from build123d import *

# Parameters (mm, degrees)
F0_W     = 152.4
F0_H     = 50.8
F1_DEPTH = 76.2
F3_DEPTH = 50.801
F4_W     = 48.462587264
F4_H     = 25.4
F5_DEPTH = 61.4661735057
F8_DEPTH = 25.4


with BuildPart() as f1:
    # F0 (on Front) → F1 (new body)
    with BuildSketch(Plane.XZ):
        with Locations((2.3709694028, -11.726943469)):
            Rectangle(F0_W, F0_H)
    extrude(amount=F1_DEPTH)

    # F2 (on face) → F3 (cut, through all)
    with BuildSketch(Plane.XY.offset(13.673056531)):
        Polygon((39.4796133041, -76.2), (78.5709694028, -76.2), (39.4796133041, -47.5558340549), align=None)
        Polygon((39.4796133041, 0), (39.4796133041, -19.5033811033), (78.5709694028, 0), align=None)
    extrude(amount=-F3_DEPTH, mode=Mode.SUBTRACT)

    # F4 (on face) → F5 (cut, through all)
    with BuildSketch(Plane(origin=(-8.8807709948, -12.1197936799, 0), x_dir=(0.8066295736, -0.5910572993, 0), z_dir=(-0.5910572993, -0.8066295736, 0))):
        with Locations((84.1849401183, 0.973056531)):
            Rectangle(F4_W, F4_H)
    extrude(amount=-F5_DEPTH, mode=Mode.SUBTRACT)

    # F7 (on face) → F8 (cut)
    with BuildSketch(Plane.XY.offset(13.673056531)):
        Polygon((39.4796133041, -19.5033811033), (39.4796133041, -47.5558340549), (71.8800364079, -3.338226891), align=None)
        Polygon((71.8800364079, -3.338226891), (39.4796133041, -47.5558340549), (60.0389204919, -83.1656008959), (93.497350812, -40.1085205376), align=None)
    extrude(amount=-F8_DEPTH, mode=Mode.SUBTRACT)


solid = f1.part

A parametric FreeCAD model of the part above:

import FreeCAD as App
import Part
import Sketcher
from FreeCAD import Vector
Q = App.Units.Quantity

doc = App.newDocument("Part")
body = doc.addObject("PartDesign::Body", "Body")

sketch1 = doc.addObject("Sketcher::SketchObject", "Sketch")
body.addObject(sketch1)
sketch1.AttachmentSupport = (doc.XZ_Plane, [""])
sketch1.MapMode = "FlatFace"
sketch1.addGeometry([
    Part.LineSegment(Vector(-73.829031, 13.673057, 0), Vector(-73.829031, -37.126943, 0)),
    Part.LineSegment(Vector(-73.829031, -37.126943, 0), Vector(78.570969, -37.126943, 0)),
    Part.LineSegment(Vector(78.570969, -37.126943, 0), Vector(78.570969, 13.673057, 0)),
    Part.LineSegment(Vector(78.570969, 13.673057, 0), Vector(-73.829031, 13.673057, 0)),
], False)
sketch1.addConstraint([
    Sketcher.Constraint("Coincident", 0, 2, 1, 1),
    Sketcher.Constraint("Coincident", 1, 2, 2, 1),
    Sketcher.Constraint("Coincident", 2, 2, 3, 1),
    Sketcher.Constraint("Coincident", 3, 2, 0, 1),
    Sketcher.Constraint("Vertical", 0),
    Sketcher.Constraint("Horizontal", 1),
    Sketcher.Constraint("Vertical", 2),
    Sketcher.Constraint("Horizontal", 3),
    Sketcher.Constraint("DistanceX", 1, 1, 1, 2, Q("6 in")),
    Sketcher.Constraint("DistanceY", 0, 2, 0, 1, Q("2 in")),
    Sketcher.Constraint("DistanceX", 0, 2, -1, 1, Q("73.829031 mm")),
    Sketcher.Constraint("DistanceY", 0, 2, -1, 1, Q("37.126943 mm")),
])
pad1 = doc.addObject("PartDesign::Pad", "Pad")
body.addObject(pad1)
pad1.Profile = sketch1
pad1.Length = Q("3 in")

sketch2 = doc.addObject("Sketcher::SketchObject", "Sketch001")
body.addObject(sketch2)
sketch2.AttachmentSupport = (doc.XY_Plane, [""])
sketch2.MapMode = "FlatFace"
sketch2.AttachmentOffset = App.Placement(Vector(0, 0, 13.673057), App.Rotation())
sketch2.addGeometry([
    Part.LineSegment(Vector(39.479613, -76.2, 0), Vector(78.570969, -76.2, 0)),
    Part.LineSegment(Vector(78.570969, -76.2, 0), Vector(39.479613, -47.555834, 0)),
    Part.LineSegment(Vector(39.479613, -47.555834, 0), Vector(39.479613, -76.2, 0)),
    Part.LineSegment(Vector(39.479613, 0, 0), Vector(39.479613, -19.503381, 0)),
    Part.LineSegment(Vector(39.479613, -19.503381, 0), Vector(78.570969, 0, 0)),
    Part.LineSegment(Vector(78.570969, 0, 0), Vector(39.479613, 0, 0)),
], False)
sketch2.addConstraint([
    Sketcher.Constraint("Coincident", 0, 2, 1, 1),
    Sketcher.Constraint("Coincident", 1, 2, 2, 1),
    Sketcher.Constraint("Coincident", 2, 2, 0, 1),
    Sketcher.Constraint("Coincident", 3, 2, 4, 1),
    Sketcher.Constraint("Coincident", 4, 2, 5, 1),
    Sketcher.Constraint("Coincident", 5, 2, 3, 1),
    Sketcher.Constraint("Horizontal", 0),
    Sketcher.Constraint("Vertical", 2),
    Sketcher.Constraint("Vertical", 3),
    Sketcher.Constraint("Horizontal", 5),
    Sketcher.Constraint("PointOnObject", 4, 2, -1),
    Sketcher.Constraint("Vertical", 2, 2, 3, 2),
    Sketcher.Constraint("Vertical", 0, 2, 4, 2),
    Sketcher.Constraint("DistanceY", 0, 2, -1, 1, Q("3 in")),
    Sketcher.Constraint("DistanceY", 3, 2, 3, 1, Q("19.503381 mm")),
    Sketcher.Constraint("DistanceX", 0, 1, 0, 2, Q("39.091356 mm")),
    Sketcher.Constraint("DistanceY", 2, 2, 2, 1, Q("28.644166 mm")),
    Sketcher.Constraint("DistanceX", -1, 1, 0, 2, Q("78.570969 mm")),
])
pocket1 = doc.addObject("PartDesign::Pocket", "Pocket")
body.addObject(pocket1)
pocket1.Profile = sketch2
pocket1.Type = "ThroughAll"

sketch3 = doc.addObject("Sketcher::SketchObject", "Sketch002")
body.addObject(sketch3)
sketch3.Placement = App.Placement(Vector(-8.880771, -12.119794, 0), App.Rotation(Vector(0.806629574, -0.591057299, 0), Vector(0, 0, 1), Vector(-0.591057299, -0.806629574, 0), "ZXY"))
sketch3.addGeometry([
    Part.LineSegment(Vector(59.953647, 13.673057, 0), Vector(59.953647, -11.726943, 0)),
    Part.LineSegment(Vector(59.953647, -11.726943, 0), Vector(108.416234, -11.726943, 0)),
    Part.LineSegment(Vector(108.416234, -11.726943, 0), Vector(108.416234, 13.673057, 0)),
    Part.LineSegment(Vector(108.416234, 13.673057, 0), Vector(59.953647, 13.673057, 0)),
], False)
sketch3.addConstraint([
    Sketcher.Constraint("Coincident", 0, 2, 1, 1),
    Sketcher.Constraint("Coincident", 1, 2, 2, 1),
    Sketcher.Constraint("Coincident", 2, 2, 3, 1),
    Sketcher.Constraint("Coincident", 3, 2, 0, 1),
    Sketcher.Constraint("Vertical", 0),
    Sketcher.Constraint("Horizontal", 1),
    Sketcher.Constraint("Vertical", 2),
    Sketcher.Constraint("Horizontal", 3),
    Sketcher.Constraint("DistanceY", 0, 2, 0, 1, Q("1 in")),
    Sketcher.Constraint("DistanceX", 1, 1, 1, 2, Q("48.462587 mm")),
    Sketcher.Constraint("DistanceX", -1, 1, 0, 2, Q("59.953647 mm")),
    Sketcher.Constraint("DistanceY", 0, 2, -1, 1, Q("11.726943 mm")),
])
pocket2 = doc.addObject("PartDesign::Pocket", "Pocket001")
body.addObject(pocket2)
pocket2.Profile = sketch3
pocket2.Type = "ThroughAll"

sketch4 = doc.addObject("Sketcher::SketchObject", "Sketch003")
body.addObject(sketch4)
sketch4.AttachmentSupport = (doc.XY_Plane, [""])
sketch4.MapMode = "FlatFace"
sketch4.AttachmentOffset = App.Placement(Vector(0, 0, 13.673057), App.Rotation())
sketch4.addGeometry([
    Part.LineSegment(Vector(39.479613, -19.503381, 0), Vector(39.479613, -47.555834, 0)),
    Part.LineSegment(Vector(39.479613, -47.555834, 0), Vector(60.03892, -83.165601, 0)),
    Part.LineSegment(Vector(60.03892, -83.165601, 0), Vector(93.497351, -40.108521, 0)),
    Part.LineSegment(Vector(93.497351, -40.108521, 0), Vector(71.880036, -3.338227, 0)),
    Part.LineSegment(Vector(71.880036, -3.338227, 0), Vector(39.479613, -19.503381, 0)),
], False)
sketch4.addConstraint([
    Sketcher.Constraint("Coincident", 0, 2, 1, 1),
    Sketcher.Constraint("Coincident", 1, 2, 2, 1),
    Sketcher.Constraint("Coincident", 2, 2, 3, 1),
    Sketcher.Constraint("Coincident", 3, 2, 4, 1),
    Sketcher.Constraint("Coincident", 4, 2, 0, 1),
    Sketcher.Constraint("Vertical", 0),
    Sketcher.Constraint("Angle", 1, Q("-60.000002 deg")),
    Sketcher.Constraint("DistanceY", 1, 2, -1, 1, Q("83.165601 mm")),
    Sketcher.Constraint("Distance", 3, Q("42.653989 mm")),
    Sketcher.Constraint("Distance", 4, Q("36.20911 mm")),
    Sketcher.Constraint("DistanceY", 0, 2, 0, 1, Q("28.052453 mm")),
    Sketcher.Constraint("DistanceX", -1, 1, 1, 2, Q("60.03892 mm")),
    Sketcher.Constraint("DistanceX", -1, 1, 2, 2, Q("93.497351 mm")),
    Sketcher.Constraint("DistanceY", 2, 2, -1, 1, Q("40.108521 mm")),
    Sketcher.Constraint("DistanceY", 4, 2, -1, 1, Q("19.503381 mm")),
])
pocket3 = doc.addObject("PartDesign::Pocket", "Pocket002")
body.addObject(pocket3)
pocket3.Profile = sketch4
pocket3.Length = Q("1 in")

doc.recompute()
